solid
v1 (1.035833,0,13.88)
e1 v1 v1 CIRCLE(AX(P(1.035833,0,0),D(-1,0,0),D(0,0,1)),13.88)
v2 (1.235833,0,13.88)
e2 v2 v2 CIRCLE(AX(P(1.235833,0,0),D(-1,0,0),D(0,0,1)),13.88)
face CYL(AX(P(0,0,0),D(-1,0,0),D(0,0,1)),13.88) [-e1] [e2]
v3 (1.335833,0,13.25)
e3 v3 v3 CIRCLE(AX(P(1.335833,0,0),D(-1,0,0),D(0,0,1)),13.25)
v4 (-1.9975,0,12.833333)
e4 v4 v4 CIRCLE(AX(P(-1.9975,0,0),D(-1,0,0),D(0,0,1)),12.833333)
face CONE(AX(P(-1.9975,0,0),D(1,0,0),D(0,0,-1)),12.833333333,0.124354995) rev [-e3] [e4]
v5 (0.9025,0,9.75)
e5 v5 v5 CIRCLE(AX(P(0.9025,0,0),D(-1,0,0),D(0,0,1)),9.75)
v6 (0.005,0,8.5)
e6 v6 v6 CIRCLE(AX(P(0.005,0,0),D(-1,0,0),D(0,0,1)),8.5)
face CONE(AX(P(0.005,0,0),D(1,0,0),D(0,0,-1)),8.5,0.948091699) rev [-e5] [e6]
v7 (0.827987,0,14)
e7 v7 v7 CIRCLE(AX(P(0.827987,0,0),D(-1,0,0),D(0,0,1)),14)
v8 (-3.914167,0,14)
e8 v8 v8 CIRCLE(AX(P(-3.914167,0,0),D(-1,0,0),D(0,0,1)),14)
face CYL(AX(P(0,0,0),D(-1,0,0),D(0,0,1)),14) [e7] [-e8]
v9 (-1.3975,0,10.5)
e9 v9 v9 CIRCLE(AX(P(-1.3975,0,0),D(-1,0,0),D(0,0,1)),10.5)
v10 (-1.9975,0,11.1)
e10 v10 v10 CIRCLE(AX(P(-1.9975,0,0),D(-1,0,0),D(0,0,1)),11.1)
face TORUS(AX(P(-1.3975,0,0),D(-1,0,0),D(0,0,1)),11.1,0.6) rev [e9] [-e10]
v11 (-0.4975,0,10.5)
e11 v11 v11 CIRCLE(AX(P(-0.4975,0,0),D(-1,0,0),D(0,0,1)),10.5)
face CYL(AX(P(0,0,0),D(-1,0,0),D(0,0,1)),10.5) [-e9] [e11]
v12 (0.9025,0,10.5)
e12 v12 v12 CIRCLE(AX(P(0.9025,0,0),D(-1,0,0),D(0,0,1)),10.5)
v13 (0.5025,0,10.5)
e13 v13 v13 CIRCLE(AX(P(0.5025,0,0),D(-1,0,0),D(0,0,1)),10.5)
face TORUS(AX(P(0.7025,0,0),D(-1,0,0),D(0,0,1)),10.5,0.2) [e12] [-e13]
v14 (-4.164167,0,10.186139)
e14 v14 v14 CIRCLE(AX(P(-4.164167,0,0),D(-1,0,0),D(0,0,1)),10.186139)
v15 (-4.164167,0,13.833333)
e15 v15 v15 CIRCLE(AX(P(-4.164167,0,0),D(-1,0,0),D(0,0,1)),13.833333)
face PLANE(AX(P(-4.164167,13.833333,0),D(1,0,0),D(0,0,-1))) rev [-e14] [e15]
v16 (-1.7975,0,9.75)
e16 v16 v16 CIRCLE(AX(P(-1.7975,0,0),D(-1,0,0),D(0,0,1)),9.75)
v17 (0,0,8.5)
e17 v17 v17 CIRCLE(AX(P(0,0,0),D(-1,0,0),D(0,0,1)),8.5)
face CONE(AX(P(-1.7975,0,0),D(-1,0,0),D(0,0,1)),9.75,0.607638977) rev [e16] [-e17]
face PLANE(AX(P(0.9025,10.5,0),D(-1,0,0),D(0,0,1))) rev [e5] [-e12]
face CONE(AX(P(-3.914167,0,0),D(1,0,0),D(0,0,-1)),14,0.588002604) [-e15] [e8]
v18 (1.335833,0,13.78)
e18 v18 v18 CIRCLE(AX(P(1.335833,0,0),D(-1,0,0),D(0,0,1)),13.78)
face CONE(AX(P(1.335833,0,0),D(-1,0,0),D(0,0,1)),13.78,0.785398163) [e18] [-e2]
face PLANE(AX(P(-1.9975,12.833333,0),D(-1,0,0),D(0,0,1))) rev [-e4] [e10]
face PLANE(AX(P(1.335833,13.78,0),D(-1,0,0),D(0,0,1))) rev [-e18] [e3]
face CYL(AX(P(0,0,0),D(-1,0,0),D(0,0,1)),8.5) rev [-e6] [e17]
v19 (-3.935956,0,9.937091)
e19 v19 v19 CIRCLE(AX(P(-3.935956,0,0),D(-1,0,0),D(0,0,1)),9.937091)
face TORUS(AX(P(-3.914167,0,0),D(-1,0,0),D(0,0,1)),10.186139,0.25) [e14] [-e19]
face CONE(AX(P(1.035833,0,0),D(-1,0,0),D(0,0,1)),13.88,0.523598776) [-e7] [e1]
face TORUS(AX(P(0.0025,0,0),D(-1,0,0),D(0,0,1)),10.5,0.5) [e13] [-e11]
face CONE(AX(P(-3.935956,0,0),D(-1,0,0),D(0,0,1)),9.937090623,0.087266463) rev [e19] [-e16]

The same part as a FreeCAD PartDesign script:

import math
import FreeCAD as App
import Part
import Sketcher

V = App.Vector
Q = App.Units.Quantity

doc = App.newDocument("Part")
body = doc.addObject("PartDesign::Body", "Body")

# Sketch on XY plane
sketch1 = doc.addObject("Sketcher::SketchObject", "Sketch")
body.addObject(sketch1)
sketch1.AttachmentSupport = (doc.XY_Plane, [""])
sketch1.MapMode = "FlatFace"
sketch1.addGeometry([
    Part.LineSegment(V(0.902, 9.75, 0), V(0.902, 10.5, 0)),  # 0
    Part.ArcOfCircle(Part.Circle(V(0.703, 10.5, 0), V(0, 0, 1), 0.2), math.radians(0), math.radians(180)),  # 1
    Part.ArcOfCircle(Part.Circle(V(0.003, 10.5, 0), V(0, 0, 1), 0.5), math.radians(0), math.radians(180)),  # 2
    Part.LineSegment(V(-0.497, 10.5, 0), V(-1.397, 10.5, 0)),  # 3
    Part.ArcOfCircle(Part.Circle(V(-1.398, 11.1, 0), V(0, 0, 1), 0.6), math.radians(180), math.radians(270)),  # 4
    Part.LineSegment(V(-1.998, 11.1, 0), V(-1.998, 12.833, 0)),  # 5
    Part.LineSegment(V(-1.998, 12.833, 0), V(1.336, 13.25, 0)),  # 6
    Part.LineSegment(V(1.336, 13.25, 0), V(1.336, 13.78, 0)),  # 7
    Part.LineSegment(V(1.336, 13.78, 0), V(1.236, 13.88, 0)),  # 8
    Part.LineSegment(V(1.236, 13.88, 0), V(1.036, 13.88, 0)),  # 9
    Part.LineSegment(V(1.036, 13.88, 0), V(0.828, 14, 0)),  # 10
    Part.LineSegment(V(0.828, 14, 0), V(-3.914, 14, 0)),  # 11
    Part.LineSegment(V(-3.914, 14, 0), V(-4.164, 13.833, 0)),  # 12
    Part.LineSegment(V(-4.164, 13.833, 0), V(-4.164, 10.186, 0)),  # 13
    Part.ArcOfCircle(Part.Circle(V(-3.914, 10.186, 0), V(0, 0, 1), 0.25), math.radians(180), math.radians(265)),  # 14
    Part.LineSegment(V(-3.936, 9.937, 0), V(-1.798, 9.75, 0)),  # 15
    Part.LineSegment(V(-1.798, 9.75, 0), V(0, 8.5, 0)),  # 16
    Part.LineSegment(V(0, 8.5, 0), V(0.005, 8.5, 0)),  # 17
    Part.LineSegment(V(0.005, 8.5, 0), V(0.902, 9.75, 0)),  # 18
], False)
sketch1.addConstraint([
    Sketcher.Constraint("Tangent", 0, 2, 1, 1),
    Sketcher.Constraint("Tangent", 1, 2, 2, 1),
    Sketcher.Constraint("Coincident", 2, 2, 3, 1),
    Sketcher.Constraint("Tangent", 3, 2, 4, 2),
    Sketcher.Constraint("Tangent", 4, 1, 5, 1),
    Sketcher.Constraint("Coincident", 5, 2, 6, 1),
    Sketcher.Constraint("Coincident", 6, 2, 7, 1),
    Sketcher.Constraint("Coincident", 7, 2, 8, 1),
    Sketcher.Constraint("Coincident", 8, 2, 9, 1),
    Sketcher.Constraint("Coincident", 9, 2, 10, 1),
    Sketcher.Constraint("Coincident", 10, 2, 11, 1),
    Sketcher.Constraint("Coincident", 11, 2, 12, 1),
    Sketcher.Constraint("Coincident", 12, 2, 13, 1),
    Sketcher.Constraint("Tangent", 13, 2, 14, 1),
    Sketcher.Constraint("Tangent", 14, 2, 15, 1),
    Sketcher.Constraint("Coincident", 15, 2, 16, 1),
    Sketcher.Constraint("Coincident", 16, 2, 17, 1),
    Sketcher.Constraint("Coincident", 17, 2, 18, 1),
    Sketcher.Constraint("Coincident", 18, 2, 0, 1),
    Sketcher.Constraint("Vertical", 0),
    Sketcher.Constraint("Horizontal", 3),
    Sketcher.Constraint("Vertical", 5),
    Sketcher.Constraint("Vertical", 7),
    Sketcher.Constraint("Horizontal", 9),
    Sketcher.Constraint("Horizontal", 11),
    Sketcher.Constraint("Vertical", 13),
    Sketcher.Constraint("Horizontal", 17),
    Sketcher.Constraint("PointOnObject", 16, 2, -2),
    Sketcher.Constraint("Horizontal", 1, 3, 2, 3),
    Sketcher.Constraint("Horizontal", 1, 2, 2, 2),
    Sketcher.Constraint("Horizontal", 15, 2, 18, 2),
    Sketcher.Constraint("Vertical", 14, 3, 11, 2),
    Sketcher.Constraint("Radius", 1, 0.2),
    Sketcher.Constraint("Radius", 2, 0.5),
    Sketcher.Constraint("Radius", 4, 0.6),
    Sketcher.Constraint("Angle", 8, Q("135 deg")),
    Sketcher.Constraint("Angle", 10, Q("150 deg")),
    Sketcher.Constraint("Angle", 15, Q("-5 deg")),
    Sketcher.Constraint("Radius", 14, 0.25),
    Sketcher.Constraint("DistanceX", 3, 2, 3, 1, 0.9),
    Sketcher.Constraint("DistanceX", 9, 2, 9, 1, 0.2),
    Sketcher.Constraint("DistanceY", -1, 1, 10, 2, 14.0),
    Sketcher.Constraint("DistanceY", 5, 2, 12, 2, 1.0),
    Sketcher.Constraint("DistanceY", 16, 2, 2, 3, 2.0),
    Sketcher.Constraint("DistanceY", 0, 1, 0, 2, 0.75),
    Sketcher.Constraint("DistanceY", 7, 1, 7, 2, 0.53),
    Sketcher.Constraint("DistanceY", -1, 1, 1, 3, 10.5),
    Sketcher.Constraint("DistanceX", 8, 2, 7, 2, 0.1),
    Sketcher.Constraint("DistanceX", 15, 2, 3, 2, 0.4),
    Sketcher.Constraint("Distance", 10, 0.24),
    Sketcher.Constraint("DistanceX", 17, 1, 17, 2, 0.005),
    Sketcher.Constraint("DistanceX", -1, 1, 1, 3, 0.7025),
    Sketcher.Constraint("DistanceX", 11, 2, 11, 1, 4.742154),
    Sketcher.Constraint("DistanceY", 5, 1, 5, 2, 1.733333),
    Sketcher.Constraint("DistanceY", 13, 2, 13, 1, 3.647194),
])
revolution = doc.addObject("PartDesign::Revolution", "Revolution")
body.addObject(revolution)
revolution.Profile = sketch1
revolution.ReferenceAxis = (sketch1, ["H_Axis"])
revolution.Angle = 360

doc.recompute()
